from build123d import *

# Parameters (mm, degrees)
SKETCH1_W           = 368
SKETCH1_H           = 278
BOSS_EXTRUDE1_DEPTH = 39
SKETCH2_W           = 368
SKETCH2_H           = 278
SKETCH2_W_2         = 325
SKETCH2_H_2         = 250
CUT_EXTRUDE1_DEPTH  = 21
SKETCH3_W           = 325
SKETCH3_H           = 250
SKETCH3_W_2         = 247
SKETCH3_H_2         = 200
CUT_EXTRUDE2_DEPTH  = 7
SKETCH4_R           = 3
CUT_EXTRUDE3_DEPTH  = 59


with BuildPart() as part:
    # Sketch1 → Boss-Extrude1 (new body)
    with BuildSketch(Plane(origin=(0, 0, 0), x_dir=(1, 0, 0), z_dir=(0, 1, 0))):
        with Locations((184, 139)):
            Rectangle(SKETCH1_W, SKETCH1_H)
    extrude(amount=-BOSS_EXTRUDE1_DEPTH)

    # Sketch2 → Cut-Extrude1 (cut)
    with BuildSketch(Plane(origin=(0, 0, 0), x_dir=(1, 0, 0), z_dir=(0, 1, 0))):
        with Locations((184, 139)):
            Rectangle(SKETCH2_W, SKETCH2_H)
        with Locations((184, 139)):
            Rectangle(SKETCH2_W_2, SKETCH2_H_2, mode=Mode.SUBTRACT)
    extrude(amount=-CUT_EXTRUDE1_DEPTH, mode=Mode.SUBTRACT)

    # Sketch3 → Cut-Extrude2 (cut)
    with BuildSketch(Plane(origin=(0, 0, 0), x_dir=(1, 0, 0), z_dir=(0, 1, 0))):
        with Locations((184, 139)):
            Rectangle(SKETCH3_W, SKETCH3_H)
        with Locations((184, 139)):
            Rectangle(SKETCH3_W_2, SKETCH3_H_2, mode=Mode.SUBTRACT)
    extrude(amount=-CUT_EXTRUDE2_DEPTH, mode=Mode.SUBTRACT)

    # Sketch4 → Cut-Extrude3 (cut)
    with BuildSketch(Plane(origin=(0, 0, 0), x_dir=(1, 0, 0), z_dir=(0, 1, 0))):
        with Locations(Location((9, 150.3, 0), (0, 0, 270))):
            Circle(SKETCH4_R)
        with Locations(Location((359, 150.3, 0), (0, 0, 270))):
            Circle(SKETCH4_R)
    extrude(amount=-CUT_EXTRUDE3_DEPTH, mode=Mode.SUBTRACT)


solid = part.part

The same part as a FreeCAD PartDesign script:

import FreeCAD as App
import Part
import Sketcher
from FreeCAD import Vector


def add_polygon(sketch, points):
    """Adds a closed chain of lines whose ends are joined by coincident constraints."""
    first, n = sketch.GeometryCount, len(points)
    for a, b in zip(points, points[1:] + points[:1]):
        sketch.addGeometry(Part.LineSegment(App.Vector(*a, 0), App.Vector(*b, 0)), False)
    for i in range(n):
        sketch.addConstraint(Sketcher.Constraint("Coincident", first + i, 2, first + (i + 1) % n, 1))

doc = App.newDocument("Part")
body = doc.addObject("PartDesign::Body", "Body")

# Sketch on XZ plane
sketch1 = body.newObject("Sketcher::SketchObject", "Sketch")
sketch1.AttachmentSupport = (doc.getObject("XZ_Plane"), [""])
sketch1.MapMode = "FlatFace"
add_polygon(sketch1, [(0, -278), (0, 0), (368, 0), (368, -278)])  # lines 0-3
sketch1.addConstraint([
    Sketcher.Constraint("Vertical", 0),
    Sketcher.Constraint("Horizontal", 1),
    Sketcher.Constraint("Vertical", 2),
    Sketcher.Constraint("Horizontal", 3),
    Sketcher.Constraint("Coincident", 0, 2, -1, 1),
    Sketcher.Constraint("DistanceX", 1, 1, 1, 2, 368.0),
    Sketcher.Constraint("DistanceY", 0, 1, 0, 2, 278.0),
])
pad1 = body.newObject("PartDesign::Pad", "Pad")
pad1.Profile = sketch1
pad1.Length = 39

# Sketch on XZ plane
sketch2 = body.newObject("Sketcher::SketchObject", "Sketch001")
sketch2.AttachmentSupport = (doc.getObject("XZ_Plane"), [""])
sketch2.MapMode = "FlatFace"
add_polygon(sketch2, [(0, -278), (0, 0), (368, 0), (368, -278)])  # lines 0-3
add_polygon(sketch2, [(346.5, -14), (21.5, -14), (21.5, -264), (346.5, -264)])  # lines 4-7
sketch2.addConstraint([
    Sketcher.Constraint("Vertical", 0),
    Sketcher.Constraint("Horizontal", 1),
    Sketcher.Constraint("Vertical", 2),
    Sketcher.Constraint("Horizontal", 3),
    Sketcher.Constraint("Horizontal", 4),
    Sketcher.Constraint("Vertical", 5),
    Sketcher.Constraint("Horizontal", 6),
    Sketcher.Constraint("Vertical", 7),
    Sketcher.Constraint("Coincident", 0, 2, -1, 1),
    Sketcher.Constraint("DistanceX", 1, 1, 1, 2, 368.0),
    Sketcher.Constraint("DistanceX", 4, 2, 4, 1, 325.0),
    Sketcher.Constraint("DistanceY", 0, 1, 0, 2, 278.0),
    Sketcher.Constraint("DistanceY", 5, 2, 5, 1, 250.0),
    Sketcher.Constraint("DistanceY", 4, 2, -1, 1, 14.0),
    Sketcher.Constraint("DistanceX", -1, 1, 4, 2, 21.5),
])
pocket1 = body.newObject("PartDesign::Pocket", "Pocket")
pocket1.Profile = sketch2
pocket1.Length = 21
pocket1.Reversed = True

# Sketch on XZ plane
sketch3 = body.newObject("Sketcher::SketchObject", "Sketch002")
sketch3.AttachmentSupport = (doc.getObject("XZ_Plane"), [""])
sketch3.MapMode = "FlatFace"
add_polygon(sketch3, [(21.5, -264), (21.5, -14), (346.5, -14), (346.5, -264)])  # lines 0-3
add_polygon(sketch3, [(307.5, -39), (60.5, -39), (60.5, -239), (307.5, -239)])  # lines 4-7
sketch3.addConstraint([
    Sketcher.Constraint("Vertical", 0),
    Sketcher.Constraint("Horizontal", 1),
    Sketcher.Constraint("Vertical", 2),
    Sketcher.Constraint("Horizontal", 3),
    Sketcher.Constraint("Horizontal", 4),
    Sketcher.Constraint("Vertical", 5),
    Sketcher.Constraint("Horizontal", 6),
    Sketcher.Constraint("Vertical", 7),
    Sketcher.Constraint("DistanceX", 1, 1, 1, 2, 325.0),
    Sketcher.Constraint("DistanceX", 4, 2, 4, 1, 247.0),
    Sketcher.Constraint("DistanceY", 0, 1, 0, 2, 250.0),
    Sketcher.Constraint("DistanceY", 5, 2, 5, 1, 200.0),
    Sketcher.Constraint("DistanceY", 0, 2, -1, 1, 14.0),
    Sketcher.Constraint("DistanceY", 4, 2, -1, 1, 39.0),
    Sketcher.Constraint("DistanceX", 0, 2, 4, 2, 39.0),
    Sketcher.Constraint("DistanceX", -1, 1, 0, 2, 21.5),
])
pocket2 = body.newObject("PartDesign::Pocket", "Pocket001")
pocket2.Profile = sketch3
pocket2.Length = 7
pocket2.Reversed = True

# Sketch on XZ plane
sketch4 = body.newObject("Sketcher::SketchObject", "Sketch003")
sketch4.AttachmentSupport = (doc.getObject("XZ_Plane"), [""])
sketch4.MapMode = "FlatFace"
sketch4.addGeometry([
    Part.Circle(Vector(9, -150.3, 0), Vector(0, 0, 1), 3),
    Part.Circle(Vector(359, -150.3, 0), Vector(0, 0, 1), 3),
], False)
sketch4.addConstraint([
    Sketcher.Constraint("Equal", 0, 1),
    Sketcher.Constraint("Horizontal", 0, 3, 1, 3),
    Sketcher.Constraint("Diameter", 0, 6.0),
    Sketcher.Constraint("DistanceX", -1, 1, 0, 3, 9.0),
    Sketcher.Constraint("DistanceX", -1, 1, 1, 3, 359.0),
    Sketcher.Constraint("DistanceY", 0, 3, -1, 1, 150.3),
])
pocket3 = body.newObject("PartDesign::Pocket", "Pocket002")
pocket3.Profile = sketch4
pocket3.Length = 59
pocket3.Reversed = True

doc.recompute()
